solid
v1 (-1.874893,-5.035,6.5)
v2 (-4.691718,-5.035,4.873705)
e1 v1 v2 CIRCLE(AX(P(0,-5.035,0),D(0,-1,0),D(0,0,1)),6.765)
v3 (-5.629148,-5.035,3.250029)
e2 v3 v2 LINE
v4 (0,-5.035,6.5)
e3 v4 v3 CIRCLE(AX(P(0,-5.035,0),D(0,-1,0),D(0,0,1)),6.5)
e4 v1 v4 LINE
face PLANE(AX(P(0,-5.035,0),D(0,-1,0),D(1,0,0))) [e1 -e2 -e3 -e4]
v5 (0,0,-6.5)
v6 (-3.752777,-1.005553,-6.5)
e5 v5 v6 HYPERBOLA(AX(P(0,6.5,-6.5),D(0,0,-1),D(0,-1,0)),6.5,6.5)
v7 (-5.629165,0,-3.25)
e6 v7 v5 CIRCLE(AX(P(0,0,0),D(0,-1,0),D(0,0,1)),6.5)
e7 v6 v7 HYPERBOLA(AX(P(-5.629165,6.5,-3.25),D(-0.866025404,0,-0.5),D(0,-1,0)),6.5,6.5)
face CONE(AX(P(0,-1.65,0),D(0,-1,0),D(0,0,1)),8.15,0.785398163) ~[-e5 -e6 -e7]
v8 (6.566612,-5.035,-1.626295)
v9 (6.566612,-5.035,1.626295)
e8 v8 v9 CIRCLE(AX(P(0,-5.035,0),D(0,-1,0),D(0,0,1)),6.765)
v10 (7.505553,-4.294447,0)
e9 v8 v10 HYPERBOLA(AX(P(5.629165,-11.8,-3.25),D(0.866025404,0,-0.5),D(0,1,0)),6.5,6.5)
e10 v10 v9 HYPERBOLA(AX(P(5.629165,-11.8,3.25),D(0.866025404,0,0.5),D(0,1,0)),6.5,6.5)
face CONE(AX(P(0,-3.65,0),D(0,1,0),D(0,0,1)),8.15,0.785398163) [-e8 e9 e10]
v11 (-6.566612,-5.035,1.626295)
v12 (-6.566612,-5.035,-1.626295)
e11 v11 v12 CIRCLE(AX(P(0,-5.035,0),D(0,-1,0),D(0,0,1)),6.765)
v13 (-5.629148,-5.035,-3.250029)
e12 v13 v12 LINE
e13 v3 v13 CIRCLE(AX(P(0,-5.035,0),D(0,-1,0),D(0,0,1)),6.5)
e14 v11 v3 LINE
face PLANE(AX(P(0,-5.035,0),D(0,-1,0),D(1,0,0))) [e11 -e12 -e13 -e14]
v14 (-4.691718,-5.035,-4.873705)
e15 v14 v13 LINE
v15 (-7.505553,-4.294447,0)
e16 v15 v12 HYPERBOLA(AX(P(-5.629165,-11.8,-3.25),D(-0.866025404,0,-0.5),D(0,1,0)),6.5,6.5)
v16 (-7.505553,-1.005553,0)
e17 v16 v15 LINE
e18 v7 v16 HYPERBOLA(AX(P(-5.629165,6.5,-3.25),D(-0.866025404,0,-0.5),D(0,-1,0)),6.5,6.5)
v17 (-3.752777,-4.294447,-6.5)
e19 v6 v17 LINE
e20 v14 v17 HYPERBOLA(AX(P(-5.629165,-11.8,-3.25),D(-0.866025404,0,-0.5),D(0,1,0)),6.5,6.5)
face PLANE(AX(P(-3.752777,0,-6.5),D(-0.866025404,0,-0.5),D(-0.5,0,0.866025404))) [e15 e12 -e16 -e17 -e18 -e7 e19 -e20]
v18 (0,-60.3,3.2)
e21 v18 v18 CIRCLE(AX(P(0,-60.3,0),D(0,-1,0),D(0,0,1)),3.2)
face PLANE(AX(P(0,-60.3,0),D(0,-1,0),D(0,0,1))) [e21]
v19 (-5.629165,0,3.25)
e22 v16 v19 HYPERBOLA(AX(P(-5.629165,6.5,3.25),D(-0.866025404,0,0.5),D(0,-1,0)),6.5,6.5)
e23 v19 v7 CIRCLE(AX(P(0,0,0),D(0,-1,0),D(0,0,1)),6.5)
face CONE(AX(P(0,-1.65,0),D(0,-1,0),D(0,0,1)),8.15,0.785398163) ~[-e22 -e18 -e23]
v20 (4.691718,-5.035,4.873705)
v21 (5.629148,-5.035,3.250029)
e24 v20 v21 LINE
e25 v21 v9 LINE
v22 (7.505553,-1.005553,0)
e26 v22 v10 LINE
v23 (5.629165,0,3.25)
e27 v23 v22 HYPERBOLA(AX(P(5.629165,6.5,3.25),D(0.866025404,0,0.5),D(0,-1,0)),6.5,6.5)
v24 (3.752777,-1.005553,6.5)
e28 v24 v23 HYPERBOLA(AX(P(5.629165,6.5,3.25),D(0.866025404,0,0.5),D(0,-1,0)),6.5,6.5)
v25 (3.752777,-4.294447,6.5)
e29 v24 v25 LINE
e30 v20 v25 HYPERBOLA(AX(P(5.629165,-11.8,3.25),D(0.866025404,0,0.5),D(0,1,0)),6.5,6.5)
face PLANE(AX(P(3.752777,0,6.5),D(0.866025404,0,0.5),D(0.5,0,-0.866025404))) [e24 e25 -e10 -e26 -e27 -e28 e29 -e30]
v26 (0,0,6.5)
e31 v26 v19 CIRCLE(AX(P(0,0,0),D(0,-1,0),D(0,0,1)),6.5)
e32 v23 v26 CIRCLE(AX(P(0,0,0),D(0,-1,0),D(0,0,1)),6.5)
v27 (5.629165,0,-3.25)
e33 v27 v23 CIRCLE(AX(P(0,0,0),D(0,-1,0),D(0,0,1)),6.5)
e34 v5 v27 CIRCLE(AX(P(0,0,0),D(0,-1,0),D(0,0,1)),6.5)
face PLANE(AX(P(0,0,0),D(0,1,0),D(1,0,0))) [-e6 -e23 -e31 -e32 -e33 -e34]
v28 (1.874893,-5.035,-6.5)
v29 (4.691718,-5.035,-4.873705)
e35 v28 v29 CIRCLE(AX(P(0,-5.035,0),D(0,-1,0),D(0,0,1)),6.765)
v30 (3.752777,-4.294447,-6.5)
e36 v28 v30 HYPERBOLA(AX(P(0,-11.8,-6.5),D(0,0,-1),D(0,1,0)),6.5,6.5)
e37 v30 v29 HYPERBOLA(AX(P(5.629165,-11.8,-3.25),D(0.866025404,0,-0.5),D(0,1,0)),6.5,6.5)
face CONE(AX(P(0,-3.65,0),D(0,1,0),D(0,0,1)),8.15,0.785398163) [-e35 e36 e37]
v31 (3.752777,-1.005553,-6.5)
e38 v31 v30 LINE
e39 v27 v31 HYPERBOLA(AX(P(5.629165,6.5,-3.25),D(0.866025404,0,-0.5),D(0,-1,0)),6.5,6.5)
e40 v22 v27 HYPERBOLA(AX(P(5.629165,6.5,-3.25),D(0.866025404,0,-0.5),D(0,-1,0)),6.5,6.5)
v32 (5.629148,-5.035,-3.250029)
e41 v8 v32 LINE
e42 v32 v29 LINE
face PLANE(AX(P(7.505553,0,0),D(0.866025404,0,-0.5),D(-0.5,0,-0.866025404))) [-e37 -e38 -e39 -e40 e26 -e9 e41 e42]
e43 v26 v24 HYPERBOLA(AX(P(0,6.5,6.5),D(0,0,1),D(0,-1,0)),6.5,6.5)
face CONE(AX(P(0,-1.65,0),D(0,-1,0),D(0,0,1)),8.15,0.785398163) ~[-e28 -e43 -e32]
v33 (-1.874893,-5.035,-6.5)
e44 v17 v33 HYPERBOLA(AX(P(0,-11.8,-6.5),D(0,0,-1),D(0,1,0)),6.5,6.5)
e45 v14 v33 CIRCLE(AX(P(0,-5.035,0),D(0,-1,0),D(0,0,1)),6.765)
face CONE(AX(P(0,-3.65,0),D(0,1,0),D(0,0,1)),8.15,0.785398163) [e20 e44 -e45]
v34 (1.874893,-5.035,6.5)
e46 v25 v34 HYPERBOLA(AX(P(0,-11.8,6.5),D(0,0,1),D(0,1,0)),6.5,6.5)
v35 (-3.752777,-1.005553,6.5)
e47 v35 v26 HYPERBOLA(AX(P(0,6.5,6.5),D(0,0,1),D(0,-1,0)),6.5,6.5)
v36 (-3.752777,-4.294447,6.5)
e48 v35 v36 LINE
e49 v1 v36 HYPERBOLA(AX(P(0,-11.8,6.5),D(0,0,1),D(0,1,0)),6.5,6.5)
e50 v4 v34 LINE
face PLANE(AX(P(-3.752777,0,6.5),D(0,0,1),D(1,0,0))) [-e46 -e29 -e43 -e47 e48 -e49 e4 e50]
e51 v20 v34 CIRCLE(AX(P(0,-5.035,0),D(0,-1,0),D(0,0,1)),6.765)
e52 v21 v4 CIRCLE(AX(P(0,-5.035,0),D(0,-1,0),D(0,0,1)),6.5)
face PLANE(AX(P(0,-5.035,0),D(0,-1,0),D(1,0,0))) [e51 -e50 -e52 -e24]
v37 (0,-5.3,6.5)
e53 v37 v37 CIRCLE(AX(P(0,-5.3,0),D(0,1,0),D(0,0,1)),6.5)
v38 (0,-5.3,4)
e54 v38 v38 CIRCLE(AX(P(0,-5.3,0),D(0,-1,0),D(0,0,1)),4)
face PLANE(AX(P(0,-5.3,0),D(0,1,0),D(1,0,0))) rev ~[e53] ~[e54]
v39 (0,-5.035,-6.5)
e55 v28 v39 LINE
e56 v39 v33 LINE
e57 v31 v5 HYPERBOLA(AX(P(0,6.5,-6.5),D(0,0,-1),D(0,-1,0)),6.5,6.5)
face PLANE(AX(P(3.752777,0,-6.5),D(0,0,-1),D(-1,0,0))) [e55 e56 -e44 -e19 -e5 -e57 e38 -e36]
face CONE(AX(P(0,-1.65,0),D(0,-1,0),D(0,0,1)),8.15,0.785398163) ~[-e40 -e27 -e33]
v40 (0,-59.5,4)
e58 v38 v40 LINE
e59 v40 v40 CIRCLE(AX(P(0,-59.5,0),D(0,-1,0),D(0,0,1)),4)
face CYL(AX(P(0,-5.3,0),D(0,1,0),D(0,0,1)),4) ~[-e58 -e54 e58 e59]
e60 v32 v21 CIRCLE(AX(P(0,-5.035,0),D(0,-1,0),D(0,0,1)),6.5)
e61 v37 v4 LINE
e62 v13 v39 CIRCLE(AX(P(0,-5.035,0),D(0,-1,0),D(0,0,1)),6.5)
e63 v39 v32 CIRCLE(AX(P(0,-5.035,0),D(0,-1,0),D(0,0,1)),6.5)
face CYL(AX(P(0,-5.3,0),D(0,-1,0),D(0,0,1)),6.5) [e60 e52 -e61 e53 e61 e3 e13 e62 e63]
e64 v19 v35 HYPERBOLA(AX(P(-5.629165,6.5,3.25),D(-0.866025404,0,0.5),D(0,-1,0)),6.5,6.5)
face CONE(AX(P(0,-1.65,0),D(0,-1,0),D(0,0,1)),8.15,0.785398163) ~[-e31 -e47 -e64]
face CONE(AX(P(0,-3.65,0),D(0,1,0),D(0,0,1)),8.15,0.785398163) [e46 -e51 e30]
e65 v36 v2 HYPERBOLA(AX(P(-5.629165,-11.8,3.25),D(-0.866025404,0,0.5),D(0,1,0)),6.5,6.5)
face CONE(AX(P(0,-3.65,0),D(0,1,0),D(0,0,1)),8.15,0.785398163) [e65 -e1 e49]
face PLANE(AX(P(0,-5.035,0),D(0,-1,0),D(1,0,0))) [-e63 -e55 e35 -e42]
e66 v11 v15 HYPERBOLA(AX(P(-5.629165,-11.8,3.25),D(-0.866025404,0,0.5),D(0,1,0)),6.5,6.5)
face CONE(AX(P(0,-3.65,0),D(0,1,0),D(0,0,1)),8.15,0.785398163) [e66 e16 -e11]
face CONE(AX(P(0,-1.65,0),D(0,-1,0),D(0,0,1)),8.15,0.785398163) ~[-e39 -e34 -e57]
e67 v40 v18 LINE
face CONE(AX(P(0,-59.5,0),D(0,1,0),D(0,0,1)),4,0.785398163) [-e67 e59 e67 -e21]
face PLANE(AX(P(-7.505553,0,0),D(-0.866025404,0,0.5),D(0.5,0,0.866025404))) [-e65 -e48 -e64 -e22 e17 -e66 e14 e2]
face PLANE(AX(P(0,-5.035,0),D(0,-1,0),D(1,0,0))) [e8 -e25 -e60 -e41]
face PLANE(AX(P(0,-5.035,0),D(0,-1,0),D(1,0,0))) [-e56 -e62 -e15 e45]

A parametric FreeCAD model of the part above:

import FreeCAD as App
import Part
import Sketcher
from FreeCAD import Vector
Q = App.Units.Quantity


def edges_at(feature, points):
    """Names of the edges that pass closest to the given points."""
    edges = feature.Shape.Edges
    near = lambda p: min(range(len(edges)), key=lambda i: edges[i].distToShape(Part.Vertex(*p))[0])
    return sorted({f"Edge{near(p) + 1}" for p in points})

doc = App.newDocument("Part")
params = doc.addObject("Spreadsheet::Sheet", "Params")
for row, (alias, value) in enumerate([
    ("pad1_length", "5.3 mm"),
    ("sketch2_width", "1.65 mm"),
    ("groove_angle", "360 deg"),
    ("sketch3_diameter", "13 mm"),
    ("sketch3_height", "19.11 mm"),
    ("pocket1_length", "0.265 mm"),
    ("sketch4_diameter", "8 mm"),
    ("pad2_length", "55 mm"),
    ("chamfer_size", "0.8 mm"),
], start=1):
    params.set(f"A{row}", alias)
    params.set(f"B{row}", "=" + value)
    params.setAlias(f"B{row}", alias)

body = doc.addObject("PartDesign::Body", "Body")

sketch1 = body.newObject("Sketcher::SketchObject", "Sketch")
sketch1.AttachmentSupport = (doc.getObject("XZ_Plane"), [""])
sketch1.MapMode = "FlatFace"
sketch1.addGeometry(Part.LineSegment(Vector(8, 0, 0), Vector(4, -6, 0)), False)
sketch1.addGeometry(Part.LineSegment(Vector(4, -6, 0), Vector(-4, -6, 0)), False)
sketch1.addGeometry(Part.LineSegment(Vector(-4, -6, 0), Vector(-8, 0, 0)), False)
sketch1.addGeometry(Part.LineSegment(Vector(-8, 0, 0), Vector(-4, 6, 0)), False)
sketch1.addGeometry(Part.LineSegment(Vector(-4, 6, 0), Vector(4, 6, 0)), False)
sketch1.addGeometry(Part.LineSegment(Vector(4, 6, 0), Vector(8, 0, 0)), False)
sketch1.addConstraint(Sketcher.Constraint("Coincident", 0, 2, 1, 1))
sketch1.addConstraint(Sketcher.Constraint("Coincident", 1, 2, 2, 1))
sketch1.addConstraint(Sketcher.Constraint("Coincident", 2, 2, 3, 1))
sketch1.addConstraint(Sketcher.Constraint("Coincident", 3, 2, 4, 1))
sketch1.addConstraint(Sketcher.Constraint("Coincident", 4, 2, 5, 1))
sketch1.addConstraint(Sketcher.Constraint("Coincident", 5, 2, 0, 1))
sketch1.addConstraint(Sketcher.Constraint("Horizontal", 1))
sketch1.addConstraint(Sketcher.Constraint("Horizontal", 4))
sketch1.addConstraint(Sketcher.Constraint("Symmetric", 0, 2, 3, 2, -1, 1))
sketch1.addConstraint(Sketcher.Constraint("Symmetric", 2, 2, 5, 2, -1, 1))
sketch1.addConstraint(Sketcher.Constraint("PointOnObject", 2, 2, -1))
sketch1.addConstraint(Sketcher.Constraint("Parallel", 2, 5))
sketch1.addConstraint(Sketcher.Constraint("Vertical", 1, 2, 3, 2))
sketch1.addConstraint(Sketcher.Constraint("Angle", 0, Q("-120 deg")))
sketch1.addConstraint(Sketcher.Constraint("DistanceY", 1, 2, 3, 2, Q("13 mm")))
sketch1.addConstraint(Sketcher.Constraint("DistanceX", 1, 2, 1, 1, Q("7.505554 mm")))
pad1 = body.newObject("PartDesign::Pad", "Pad")
pad1.Profile = sketch1
pad1.setExpression("Length", "Params.pad1_length")

sketch2 = body.newObject("Sketcher::SketchObject", "Sketch001")
sketch2.AttachmentSupport = (doc.getObject("YZ_Plane"), [""])
sketch2.MapMode = "FlatFace"
sketch2.addGeometry(Part.LineSegment(Vector(0, 6.5, 0), Vector(0, 8.2, 0)), False)
sketch2.addGeometry(Part.LineSegment(Vector(0, 8.2, 0), Vector(-1.6, 8.2, 0)), False)
sketch2.addGeometry(Part.LineSegment(Vector(-1.6, 8.2, 0), Vector(0, 6.5, 0)), False)
sketch2.addGeometry(Part.LineSegment(Vector(-5.3, 6.5, 0), Vector(-3.6, 8.2, 0)), False)
sketch2.addGeometry(Part.LineSegment(Vector(-3.6, 8.2, 0), Vector(-5.3, 8.2, 0)), False)
sketch2.addGeometry(Part.LineSegment(Vector(-5.3, 8.2, 0), Vector(-5.3, 6.5, 0)), False)
sketch2.addConstraint(Sketcher.Constraint("Coincident", 0, 2, 1, 1))
sketch2.addConstraint(Sketcher.Constraint("Coincident", 1, 2, 2, 1))
sketch2.addConstraint(Sketcher.Constraint("Coincident", 2, 2, 0, 1))
sketch2.addConstraint(Sketcher.Constraint("Coincident", 3, 2, 4, 1))
sketch2.addConstraint(Sketcher.Constraint("Coincident", 4, 2, 5, 1))
sketch2.addConstraint(Sketcher.Constraint("Coincident", 5, 2, 3, 1))
sketch2.addConstraint(Sketcher.Constraint("Vertical", 0))
sketch2.addConstraint(Sketcher.Constraint("Horizontal", 1))
sketch2.addConstraint(Sketcher.Constraint("Horizontal", 4))
sketch2.addConstraint(Sketcher.Constraint("Vertical", 5))
sketch2.addConstraint(Sketcher.Constraint("PointOnObject", 0, 2, -2))
sketch2.addConstraint(Sketcher.Constraint("Perpendicular", 2, 3))
sketch2.addConstraint(Sketcher.Constraint("Horizontal", 1, 2, 3, 2))
sketch2.addConstraint(Sketcher.Constraint("Horizontal", 2, 2, 5, 2))
sketch2.addConstraint(Sketcher.Constraint("Equal", 1, 4))
sketch2.addConstraint(Sketcher.Constraint("DistanceX", 3, 2, 1, 2, Q("2 mm")))
sketch2.addConstraint(Sketcher.Constraint("DistanceX", 1, 2, 1, 1, Q("1.65 mm")))
sketch2.addConstraint(Sketcher.Constraint("DistanceY", -1, 1, 2, 2, Q("6.5 mm")))
sketch2.setExpression("Constraints[16]", "Params.sketch2_width")
groove = body.newObject("PartDesign::Groove", "Groove")
groove.Profile = sketch2
groove.ReferenceAxis = (sketch2, ["H_Axis"])
groove.setExpression("Angle", "Params.groove_angle")

sketch3 = body.newObject("Sketcher::SketchObject", "Sketch002")
sketch3.AttachmentSupport = (doc.getObject("XZ_Plane"), [""])
sketch3.MapMode = "FlatFace"
sketch3.AttachmentOffset = App.Placement(Vector(0, 0, 5.3), App.Rotation())
sketch3.addGeometry(Part.LineSegment(Vector(-11, 10, 0), Vector(-11, -10, 0)), False)
sketch3.addGeometry(Part.LineSegment(Vector(-11, -10, 0), Vector(11, -10, 0)), False)
sketch3.addGeometry(Part.LineSegment(Vector(11, -10, 0), Vector(11, 10, 0)), False)
sketch3.addGeometry(Part.LineSegment(Vector(11, 10, 0), Vector(-11, 10, 0)), False)
sketch3.addGeometry(Part.Circle(Vector(0, 0, 0), Vector(0, 0, 1), 6), False)
sketch3.addConstraint(Sketcher.Constraint("Coincident", 0, 2, 1, 1))
sketch3.addConstraint(Sketcher.Constraint("Coincident", 1, 2, 2, 1))
sketch3.addConstraint(Sketcher.Constraint("Coincident", 2, 2, 3, 1))
sketch3.addConstraint(Sketcher.Constraint("Coincident", 3, 2, 0, 1))
sketch3.addConstraint(Sketcher.Constraint("Vertical", 0))
sketch3.addConstraint(Sketcher.Constraint("Horizontal", 1))
sketch3.addConstraint(Sketcher.Constraint("Vertical", 2))
sketch3.addConstraint(Sketcher.Constraint("Horizontal", 3))
sketch3.addConstraint(Sketcher.Constraint("Coincident", 4, 3, -1, 1))
sketch3.addConstraint(Sketcher.Constraint("Symmetric", 0, 2, 2, 2, -1, 1))
sketch3.addConstraint(Sketcher.Constraint("Diameter", 4, Q("13 mm")))
sketch3.addConstraint(Sketcher.Constraint("DistanceY", 0, 2, 0, 1, Q("19.11 mm")))
sketch3.addConstraint(Sketcher.Constraint("DistanceX", 1, 1, 1, 2, Q("21.122 mm")))
sketch3.setExpression("Constraints[10]", "Params.sketch3_diameter")
sketch3.setExpression("Constraints[11]", "Params.sketch3_height")
pocket1 = body.newObject("PartDesign::Pocket", "Pocket")
pocket1.Profile = sketch3
pocket1.setExpression("Length", "Params.pocket1_length")

sketch4 = body.newObject("Sketcher::SketchObject", "Sketch003")
sketch4.AttachmentSupport = (doc.getObject("XZ_Plane"), [""])
sketch4.MapMode = "FlatFace"
sketch4.AttachmentOffset = App.Placement(Vector(0, 0, 5.3), App.Rotation())
sketch4.addGeometry(Part.Circle(Vector(0, 0, 0), Vector(0, 0, 1), 4), False)
sketch4.addConstraint(Sketcher.Constraint("Coincident", 0, 3, -1, 1))
sketch4.addConstraint(Sketcher.Constraint("Diameter", 0, Q("8 mm")))
sketch4.setExpression("Constraints[1]", "Params.sketch4_diameter")
pad2 = body.newObject("PartDesign::Pad", "Pad001")
pad2.Profile = sketch4
pad2.setExpression("Length", "Params.pad2_length")
doc.recompute()

chamfer = body.newObject("PartDesign::Chamfer", "Chamfer")
chamfer.Base = (pad2, edges_at(pad2, [(0, -60.3, -4)]))
chamfer.setExpression("Size", "Params.chamfer_size")

doc.recompute()
